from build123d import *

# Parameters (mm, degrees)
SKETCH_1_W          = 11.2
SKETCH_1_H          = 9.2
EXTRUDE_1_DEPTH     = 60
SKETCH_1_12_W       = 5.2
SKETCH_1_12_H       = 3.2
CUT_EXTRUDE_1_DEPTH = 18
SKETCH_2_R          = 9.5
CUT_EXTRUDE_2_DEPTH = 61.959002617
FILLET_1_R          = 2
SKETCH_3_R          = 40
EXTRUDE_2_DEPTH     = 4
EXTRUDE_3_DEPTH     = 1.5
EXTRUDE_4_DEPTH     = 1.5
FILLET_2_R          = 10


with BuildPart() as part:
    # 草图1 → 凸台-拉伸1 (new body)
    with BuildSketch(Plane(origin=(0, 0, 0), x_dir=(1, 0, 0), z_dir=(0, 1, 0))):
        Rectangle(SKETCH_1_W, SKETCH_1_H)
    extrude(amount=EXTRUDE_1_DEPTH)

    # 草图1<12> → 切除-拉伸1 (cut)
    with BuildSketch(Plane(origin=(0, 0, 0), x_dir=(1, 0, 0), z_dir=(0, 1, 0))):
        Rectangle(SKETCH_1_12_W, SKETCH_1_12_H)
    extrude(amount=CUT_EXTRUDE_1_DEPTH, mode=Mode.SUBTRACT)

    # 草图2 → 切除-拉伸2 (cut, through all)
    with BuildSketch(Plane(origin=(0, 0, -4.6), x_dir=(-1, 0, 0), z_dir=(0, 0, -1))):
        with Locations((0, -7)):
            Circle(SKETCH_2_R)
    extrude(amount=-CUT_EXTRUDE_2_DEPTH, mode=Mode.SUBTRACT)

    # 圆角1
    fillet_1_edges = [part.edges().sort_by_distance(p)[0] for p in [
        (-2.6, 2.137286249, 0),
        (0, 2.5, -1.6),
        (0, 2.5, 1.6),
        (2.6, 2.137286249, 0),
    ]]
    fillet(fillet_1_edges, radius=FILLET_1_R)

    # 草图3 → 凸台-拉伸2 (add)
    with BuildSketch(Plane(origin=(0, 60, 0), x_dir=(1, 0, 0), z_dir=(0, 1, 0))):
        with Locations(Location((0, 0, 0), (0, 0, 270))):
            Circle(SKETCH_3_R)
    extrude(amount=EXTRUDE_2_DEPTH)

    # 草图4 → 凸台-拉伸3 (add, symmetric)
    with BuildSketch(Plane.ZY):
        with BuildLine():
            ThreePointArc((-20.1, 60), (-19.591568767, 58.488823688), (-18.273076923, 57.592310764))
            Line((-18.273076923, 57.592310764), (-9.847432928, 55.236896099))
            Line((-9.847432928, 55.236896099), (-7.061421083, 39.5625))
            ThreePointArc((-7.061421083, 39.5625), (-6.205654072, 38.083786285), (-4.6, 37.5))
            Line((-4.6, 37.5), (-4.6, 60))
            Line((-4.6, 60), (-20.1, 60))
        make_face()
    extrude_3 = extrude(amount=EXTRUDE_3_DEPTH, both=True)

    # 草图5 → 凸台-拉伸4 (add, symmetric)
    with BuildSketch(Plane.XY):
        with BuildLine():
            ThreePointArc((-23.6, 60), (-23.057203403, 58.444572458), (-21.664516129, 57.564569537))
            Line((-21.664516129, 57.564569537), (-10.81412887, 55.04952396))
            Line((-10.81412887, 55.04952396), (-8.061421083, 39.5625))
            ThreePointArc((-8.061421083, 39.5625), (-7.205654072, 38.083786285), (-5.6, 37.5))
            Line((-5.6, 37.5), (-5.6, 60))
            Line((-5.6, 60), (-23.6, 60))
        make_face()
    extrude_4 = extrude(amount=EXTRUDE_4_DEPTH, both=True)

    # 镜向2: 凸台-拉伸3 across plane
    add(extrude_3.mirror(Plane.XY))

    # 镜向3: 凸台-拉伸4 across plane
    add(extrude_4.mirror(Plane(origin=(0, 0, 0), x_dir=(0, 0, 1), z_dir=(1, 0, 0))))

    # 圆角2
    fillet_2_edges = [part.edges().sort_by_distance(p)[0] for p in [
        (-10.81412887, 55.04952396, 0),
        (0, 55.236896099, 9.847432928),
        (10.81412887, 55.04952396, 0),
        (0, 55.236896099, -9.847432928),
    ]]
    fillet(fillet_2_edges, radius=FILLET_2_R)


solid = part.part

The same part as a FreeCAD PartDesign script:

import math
import FreeCAD as App
import Part
import Sketcher
Q = App.Units.Quantity


def edges_at(feature, points):
    """Names of the edges that pass closest to the given points."""
    edges = feature.Shape.Edges
    near = lambda p: min(range(len(edges)), key=lambda i: edges[i].distToShape(Part.Vertex(*p))[0])
    return sorted({f"Edge{near(p) + 1}" for p in points})


def add_polygon(sketch, points):
    """Adds a closed chain of lines whose ends are joined by coincident constraints."""
    first, n = sketch.GeometryCount, len(points)
    for a, b in zip(points, points[1:] + points[:1]):
        sketch.addGeometry(Part.LineSegment(App.Vector(*a, 0), App.Vector(*b, 0)), False)
    for i in range(n):
        sketch.addConstraint(Sketcher.Constraint("Coincident", first + i, 2, first + (i + 1) % n, 1))

doc = App.newDocument("Part")
body = doc.addObject("PartDesign::Body", "Body")

# Sketch on XZ plane
sketch1 = body.newObject("Sketcher::SketchObject", "Sketch")
sketch1.AttachmentSupport = (doc.getObject("XZ_Plane"), [""])
sketch1.MapMode = "FlatFace"
add_polygon(sketch1, [(-5.6, -4.6), (-5.6, 4.6), (5.6, 4.6), (5.6, -4.6)])  # lines 0-3
sketch1.addConstraint(Sketcher.Constraint("Vertical", 0))
sketch1.addConstraint(Sketcher.Constraint("Horizontal", 1))
sketch1.addConstraint(Sketcher.Constraint("Vertical", 2))
sketch1.addConstraint(Sketcher.Constraint("Horizontal", 3))
sketch1.addConstraint(Sketcher.Constraint("Symmetric", 0, 2, 2, 2, -1, 1))
sketch1.addConstraint(Sketcher.Constraint("DistanceX", 1, 1, 1, 2, Q("11.2 mm")))
sketch1.addConstraint(Sketcher.Constraint("DistanceY", 0, 1, 0, 2, Q("9.2 mm")))
pad1 = body.newObject("PartDesign::Pad", "Pad")
pad1.Profile = sketch1
pad1.Length = 60
pad1.Reversed = True

# Sketch on XZ plane
sketch2 = body.newObject("Sketcher::SketchObject", "Sketch001")
sketch2.AttachmentSupport = (doc.getObject("XZ_Plane"), [""])
sketch2.MapMode = "FlatFace"
add_polygon(sketch2, [(-2.6, -1.6), (-2.6, 1.6), (2.6, 1.6), (2.6, -1.6)])  # lines 0-3
sketch2.addConstraint(Sketcher.Constraint("Vertical", 0))
sketch2.addConstraint(Sketcher.Constraint("Horizontal", 1))
sketch2.addConstraint(Sketcher.Constraint("Vertical", 2))
sketch2.addConstraint(Sketcher.Constraint("Horizontal", 3))
sketch2.addConstraint(Sketcher.Constraint("Symmetric", 0, 2, 2, 2, -1, 1))
sketch2.addConstraint(Sketcher.Constraint("DistanceX", 1, 1, 1, 2, Q("5.2 mm")))
sketch2.addConstraint(Sketcher.Constraint("DistanceY", 0, 1, 0, 2, Q("3.2 mm")))
pocket1 = body.newObject("PartDesign::Pocket", "Pocket")
pocket1.Profile = sketch2
pocket1.Length = 18

# Sketch on XY plane
sketch3 = body.newObject("Sketcher::SketchObject", "Sketch002")
sketch3.AttachmentSupport = (doc.getObject("XY_Plane"), [""])
sketch3.MapMode = "FlatFace"
sketch3.AttachmentOffset = App.Placement(App.Vector(0, 0, -4.6), App.Rotation())
sketch3.addGeometry(Part.Circle(App.Vector(0, -7, 0), App.Vector(0, 0, 1), 9.5), False)
sketch3.addConstraint(Sketcher.Constraint("PointOnObject", 0, 3, -2))
sketch3.addConstraint(Sketcher.Constraint("Diameter", 0, Q("19 mm")))
sketch3.addConstraint(Sketcher.Constraint("DistanceY", 0, 3, -1, 1, Q("7 mm")))
pocket2 = body.newObject("PartDesign::Pocket", "Pocket001")
pocket2.Profile = sketch3
pocket2.Type = "ThroughAll"
pocket2.Reversed = True
doc.recompute()

fillet = body.newObject("PartDesign::Fillet", "Fillet")
fillet.Base = (pocket2, edges_at(pocket2, [
    (-2.6, 2.137, 0),
    (0, 2.5, -1.6),
    (0, 2.5, 1.6),
    (2.6, 2.137, 0),
]))
fillet.Radius = 2

# Sketch on XZ plane
sketch4 = body.newObject("Sketcher::SketchObject", "Sketch003")
sketch4.AttachmentSupport = (doc.getObject("XZ_Plane"), [""])
sketch4.MapMode = "FlatFace"
sketch4.AttachmentOffset = App.Placement(App.Vector(0, 0, -60), App.Rotation())
sketch4.addGeometry(Part.Circle(App.Vector(0, 0, 0), App.Vector(0, 0, 1), 40), False)
sketch4.addConstraint(Sketcher.Constraint("Coincident", 0, 3, -1, 1))
sketch4.addConstraint(Sketcher.Constraint("Diameter", 0, Q("80 mm")))
pad2 = body.newObject("PartDesign::Pad", "Pad001")
pad2.Profile = sketch4
pad2.Length = 4
pad2.Reversed = True

# Sketch on YZ plane
sketch5 = body.newObject("Sketcher::SketchObject", "Sketch004")
sketch5.AttachmentSupport = (doc.getObject("YZ_Plane"), [""])
sketch5.MapMode = "FlatFace"
sketch5.addGeometry(Part.ArcOfCircle(Part.Circle(App.Vector(60, -17.6, 0), App.Vector(0, 0, 1), 2.5), math.radians(-164.381502), math.radians(-90)), False)
sketch5.addGeometry(Part.LineSegment(App.Vector(57.592311, -18.273077, 0), App.Vector(55.236896, -9.847433, 0)), False)
sketch5.addGeometry(Part.LineSegment(App.Vector(55.236896, -9.847433, 0), App.Vector(39.5625, -7.061421, 0)), False)
sketch5.addGeometry(Part.ArcOfCircle(Part.Circle(App.Vector(40, -4.6, 0), App.Vector(0, 0, 1), 2.5), math.radians(180), math.radians(259.921342)), False)
sketch5.addGeometry(Part.LineSegment(App.Vector(37.5, -4.6, 0), App.Vector(60, -4.6, 0)), False)
sketch5.addGeometry(Part.LineSegment(App.Vector(60, -4.6, 0), App.Vector(60, -20.1, 0)), False)
sketch5.addConstraint(Sketcher.Constraint("Tangent", 0, 1, 1, 1))
sketch5.addConstraint(Sketcher.Constraint("Coincident", 1, 2, 2, 1))
sketch5.addConstraint(Sketcher.Constraint("Tangent", 2, 2, 3, 2))
sketch5.addConstraint(Sketcher.Constraint("Coincident", 3, 1, 4, 1))
sketch5.addConstraint(Sketcher.Constraint("Coincident", 4, 2, 5, 1))
sketch5.addConstraint(Sketcher.Constraint("Coincident", 5, 2, 0, 2))
sketch5.addConstraint(Sketcher.Constraint("Horizontal", 4))
sketch5.addConstraint(Sketcher.Constraint("Vertical", 5))
sketch5.addConstraint(Sketcher.Constraint("Equal", 0, 3))
sketch5.addConstraint(Sketcher.Constraint("Vertical", 0, 3, 4, 2))
sketch5.addConstraint(Sketcher.Constraint("Radius", 0, Q("2.5 mm")))
sketch5.addConstraint(Sketcher.Constraint("DistanceX", 4, 1, 4, 2, Q("22.5 mm")))
sketch5.addConstraint(Sketcher.Constraint("DistanceY", 5, 2, 5, 1, Q("15.5 mm")))
sketch5.addConstraint(Sketcher.Constraint("DistanceX", -1, 1, 0, 3, Q("60 mm")))
sketch5.addConstraint(Sketcher.Constraint("DistanceY", 0, 3, 3, 3, Q("13 mm")))
sketch5.addConstraint(Sketcher.Constraint("DistanceY", 0, 3, -1, 1, Q("17.6 mm")))
sketch5.addConstraint(Sketcher.Constraint("DistanceX", -1, 1, 2, 2, Q("39.5625 mm")))
sketch5.addConstraint(Sketcher.Constraint("DistanceX", -1, 1, 0, 1, Q("57.592311 mm")))
pad3 = body.newObject("PartDesign::Pad", "Pad002")
pad3.Profile = sketch5
pad3.Length = 3
pad3.Midplane = True

# Sketch on XY plane
sketch6 = body.newObject("Sketcher::SketchObject", "Sketch005")
sketch6.AttachmentSupport = (doc.getObject("XY_Plane"), [""])
sketch6.MapMode = "FlatFace"
sketch6.addGeometry(Part.ArcOfCircle(Part.Circle(App.Vector(-21.1, 60, 0), App.Vector(0, 0, 1), 2.5), math.radians(-180), math.radians(-103.050305)), False)
sketch6.addGeometry(Part.LineSegment(App.Vector(-21.664516, 57.56457, 0), App.Vector(-10.814129, 55.049524, 0)), False)
sketch6.addGeometry(Part.LineSegment(App.Vector(-10.814129, 55.049524, 0), App.Vector(-8.061421, 39.5625, 0)), False)
sketch6.addGeometry(Part.ArcOfCircle(Part.Circle(App.Vector(-5.6, 40, 0), App.Vector(0, 0, 1), 2.5), math.radians(-169.921342), math.radians(-90)), False)
sketch6.addGeometry(Part.LineSegment(App.Vector(-5.6, 37.5, 0), App.Vector(-5.6, 60, 0)), False)
sketch6.addGeometry(Part.LineSegment(App.Vector(-5.6, 60, 0), App.Vector(-23.6, 60, 0)), False)
sketch6.addConstraint(Sketcher.Constraint("Tangent", 0, 2, 1, 1))
sketch6.addConstraint(Sketcher.Constraint("Coincident", 1, 2, 2, 1))
sketch6.addConstraint(Sketcher.Constraint("Tangent", 2, 2, 3, 1))
sketch6.addConstraint(Sketcher.Constraint("Coincident", 3, 2, 4, 1))
sketch6.addConstraint(Sketcher.Constraint("Coincident", 4, 2, 5, 1))
sketch6.addConstraint(Sketcher.Constraint("Coincident", 5, 2, 0, 1))
sketch6.addConstraint(Sketcher.Constraint("Vertical", 4))
sketch6.addConstraint(Sketcher.Constraint("Horizontal", 5))
sketch6.addConstraint(Sketcher.Constraint("Equal", 0, 3))
sketch6.addConstraint(Sketcher.Constraint("Horizontal", 0, 3, 4, 2))
sketch6.addConstraint(Sketcher.Constraint("Radius", 0, Q("2.5 mm")))
sketch6.addConstraint(Sketcher.Constraint("DistanceX", 5, 2, 5, 1, Q("18 mm")))
sketch6.addConstraint(Sketcher.Constraint("DistanceY", 4, 1, 4, 2, Q("22.5 mm")))
sketch6.addConstraint(Sketcher.Constraint("DistanceY", -1, 1, 0, 3, Q("60 mm")))
sketch6.addConstraint(Sketcher.Constraint("DistanceX", 0, 3, -1, 1, Q("21.1 mm")))
sketch6.addConstraint(Sketcher.Constraint("DistanceX", 3, 3, -1, 1, Q("5.6 mm")))
sketch6.addConstraint(Sketcher.Constraint("DistanceY", -1, 1, 2, 2, Q("39.5625 mm")))
sketch6.addConstraint(Sketcher.Constraint("Distance", 1, Q("11.138059 mm")))
pad4 = body.newObject("PartDesign::Pad", "Pad003")
pad4.Profile = sketch6
pad4.Length = 3
pad4.Midplane = True
doc.recompute()

mirrored = body.newObject("PartDesign::Mirrored", "Mirrored")
mirrored.Originals = [pad3]
mirrored.MirrorPlane = (doc.getObject("XY_Plane"), [""])
body.Tip = mirrored
doc.recompute()

mirrored2 = body.newObject("PartDesign::Mirrored", "Mirrored001")
mirrored2.Originals = [pad4]
mirrored2.MirrorPlane = (doc.getObject("YZ_Plane"), [""])
body.Tip = mirrored2
doc.recompute()

fillet2 = body.newObject("PartDesign::Fillet", "Fillet001")
fillet2.Base = (mirrored2, edges_at(mirrored2, [
    (-10.814, 55.05, 0),
    (0, 55.237, 9.847),
    (10.814, 55.05, 0),
    (0, 55.237, -9.847),
]))
fillet2.Radius = 10

doc.recompute()
